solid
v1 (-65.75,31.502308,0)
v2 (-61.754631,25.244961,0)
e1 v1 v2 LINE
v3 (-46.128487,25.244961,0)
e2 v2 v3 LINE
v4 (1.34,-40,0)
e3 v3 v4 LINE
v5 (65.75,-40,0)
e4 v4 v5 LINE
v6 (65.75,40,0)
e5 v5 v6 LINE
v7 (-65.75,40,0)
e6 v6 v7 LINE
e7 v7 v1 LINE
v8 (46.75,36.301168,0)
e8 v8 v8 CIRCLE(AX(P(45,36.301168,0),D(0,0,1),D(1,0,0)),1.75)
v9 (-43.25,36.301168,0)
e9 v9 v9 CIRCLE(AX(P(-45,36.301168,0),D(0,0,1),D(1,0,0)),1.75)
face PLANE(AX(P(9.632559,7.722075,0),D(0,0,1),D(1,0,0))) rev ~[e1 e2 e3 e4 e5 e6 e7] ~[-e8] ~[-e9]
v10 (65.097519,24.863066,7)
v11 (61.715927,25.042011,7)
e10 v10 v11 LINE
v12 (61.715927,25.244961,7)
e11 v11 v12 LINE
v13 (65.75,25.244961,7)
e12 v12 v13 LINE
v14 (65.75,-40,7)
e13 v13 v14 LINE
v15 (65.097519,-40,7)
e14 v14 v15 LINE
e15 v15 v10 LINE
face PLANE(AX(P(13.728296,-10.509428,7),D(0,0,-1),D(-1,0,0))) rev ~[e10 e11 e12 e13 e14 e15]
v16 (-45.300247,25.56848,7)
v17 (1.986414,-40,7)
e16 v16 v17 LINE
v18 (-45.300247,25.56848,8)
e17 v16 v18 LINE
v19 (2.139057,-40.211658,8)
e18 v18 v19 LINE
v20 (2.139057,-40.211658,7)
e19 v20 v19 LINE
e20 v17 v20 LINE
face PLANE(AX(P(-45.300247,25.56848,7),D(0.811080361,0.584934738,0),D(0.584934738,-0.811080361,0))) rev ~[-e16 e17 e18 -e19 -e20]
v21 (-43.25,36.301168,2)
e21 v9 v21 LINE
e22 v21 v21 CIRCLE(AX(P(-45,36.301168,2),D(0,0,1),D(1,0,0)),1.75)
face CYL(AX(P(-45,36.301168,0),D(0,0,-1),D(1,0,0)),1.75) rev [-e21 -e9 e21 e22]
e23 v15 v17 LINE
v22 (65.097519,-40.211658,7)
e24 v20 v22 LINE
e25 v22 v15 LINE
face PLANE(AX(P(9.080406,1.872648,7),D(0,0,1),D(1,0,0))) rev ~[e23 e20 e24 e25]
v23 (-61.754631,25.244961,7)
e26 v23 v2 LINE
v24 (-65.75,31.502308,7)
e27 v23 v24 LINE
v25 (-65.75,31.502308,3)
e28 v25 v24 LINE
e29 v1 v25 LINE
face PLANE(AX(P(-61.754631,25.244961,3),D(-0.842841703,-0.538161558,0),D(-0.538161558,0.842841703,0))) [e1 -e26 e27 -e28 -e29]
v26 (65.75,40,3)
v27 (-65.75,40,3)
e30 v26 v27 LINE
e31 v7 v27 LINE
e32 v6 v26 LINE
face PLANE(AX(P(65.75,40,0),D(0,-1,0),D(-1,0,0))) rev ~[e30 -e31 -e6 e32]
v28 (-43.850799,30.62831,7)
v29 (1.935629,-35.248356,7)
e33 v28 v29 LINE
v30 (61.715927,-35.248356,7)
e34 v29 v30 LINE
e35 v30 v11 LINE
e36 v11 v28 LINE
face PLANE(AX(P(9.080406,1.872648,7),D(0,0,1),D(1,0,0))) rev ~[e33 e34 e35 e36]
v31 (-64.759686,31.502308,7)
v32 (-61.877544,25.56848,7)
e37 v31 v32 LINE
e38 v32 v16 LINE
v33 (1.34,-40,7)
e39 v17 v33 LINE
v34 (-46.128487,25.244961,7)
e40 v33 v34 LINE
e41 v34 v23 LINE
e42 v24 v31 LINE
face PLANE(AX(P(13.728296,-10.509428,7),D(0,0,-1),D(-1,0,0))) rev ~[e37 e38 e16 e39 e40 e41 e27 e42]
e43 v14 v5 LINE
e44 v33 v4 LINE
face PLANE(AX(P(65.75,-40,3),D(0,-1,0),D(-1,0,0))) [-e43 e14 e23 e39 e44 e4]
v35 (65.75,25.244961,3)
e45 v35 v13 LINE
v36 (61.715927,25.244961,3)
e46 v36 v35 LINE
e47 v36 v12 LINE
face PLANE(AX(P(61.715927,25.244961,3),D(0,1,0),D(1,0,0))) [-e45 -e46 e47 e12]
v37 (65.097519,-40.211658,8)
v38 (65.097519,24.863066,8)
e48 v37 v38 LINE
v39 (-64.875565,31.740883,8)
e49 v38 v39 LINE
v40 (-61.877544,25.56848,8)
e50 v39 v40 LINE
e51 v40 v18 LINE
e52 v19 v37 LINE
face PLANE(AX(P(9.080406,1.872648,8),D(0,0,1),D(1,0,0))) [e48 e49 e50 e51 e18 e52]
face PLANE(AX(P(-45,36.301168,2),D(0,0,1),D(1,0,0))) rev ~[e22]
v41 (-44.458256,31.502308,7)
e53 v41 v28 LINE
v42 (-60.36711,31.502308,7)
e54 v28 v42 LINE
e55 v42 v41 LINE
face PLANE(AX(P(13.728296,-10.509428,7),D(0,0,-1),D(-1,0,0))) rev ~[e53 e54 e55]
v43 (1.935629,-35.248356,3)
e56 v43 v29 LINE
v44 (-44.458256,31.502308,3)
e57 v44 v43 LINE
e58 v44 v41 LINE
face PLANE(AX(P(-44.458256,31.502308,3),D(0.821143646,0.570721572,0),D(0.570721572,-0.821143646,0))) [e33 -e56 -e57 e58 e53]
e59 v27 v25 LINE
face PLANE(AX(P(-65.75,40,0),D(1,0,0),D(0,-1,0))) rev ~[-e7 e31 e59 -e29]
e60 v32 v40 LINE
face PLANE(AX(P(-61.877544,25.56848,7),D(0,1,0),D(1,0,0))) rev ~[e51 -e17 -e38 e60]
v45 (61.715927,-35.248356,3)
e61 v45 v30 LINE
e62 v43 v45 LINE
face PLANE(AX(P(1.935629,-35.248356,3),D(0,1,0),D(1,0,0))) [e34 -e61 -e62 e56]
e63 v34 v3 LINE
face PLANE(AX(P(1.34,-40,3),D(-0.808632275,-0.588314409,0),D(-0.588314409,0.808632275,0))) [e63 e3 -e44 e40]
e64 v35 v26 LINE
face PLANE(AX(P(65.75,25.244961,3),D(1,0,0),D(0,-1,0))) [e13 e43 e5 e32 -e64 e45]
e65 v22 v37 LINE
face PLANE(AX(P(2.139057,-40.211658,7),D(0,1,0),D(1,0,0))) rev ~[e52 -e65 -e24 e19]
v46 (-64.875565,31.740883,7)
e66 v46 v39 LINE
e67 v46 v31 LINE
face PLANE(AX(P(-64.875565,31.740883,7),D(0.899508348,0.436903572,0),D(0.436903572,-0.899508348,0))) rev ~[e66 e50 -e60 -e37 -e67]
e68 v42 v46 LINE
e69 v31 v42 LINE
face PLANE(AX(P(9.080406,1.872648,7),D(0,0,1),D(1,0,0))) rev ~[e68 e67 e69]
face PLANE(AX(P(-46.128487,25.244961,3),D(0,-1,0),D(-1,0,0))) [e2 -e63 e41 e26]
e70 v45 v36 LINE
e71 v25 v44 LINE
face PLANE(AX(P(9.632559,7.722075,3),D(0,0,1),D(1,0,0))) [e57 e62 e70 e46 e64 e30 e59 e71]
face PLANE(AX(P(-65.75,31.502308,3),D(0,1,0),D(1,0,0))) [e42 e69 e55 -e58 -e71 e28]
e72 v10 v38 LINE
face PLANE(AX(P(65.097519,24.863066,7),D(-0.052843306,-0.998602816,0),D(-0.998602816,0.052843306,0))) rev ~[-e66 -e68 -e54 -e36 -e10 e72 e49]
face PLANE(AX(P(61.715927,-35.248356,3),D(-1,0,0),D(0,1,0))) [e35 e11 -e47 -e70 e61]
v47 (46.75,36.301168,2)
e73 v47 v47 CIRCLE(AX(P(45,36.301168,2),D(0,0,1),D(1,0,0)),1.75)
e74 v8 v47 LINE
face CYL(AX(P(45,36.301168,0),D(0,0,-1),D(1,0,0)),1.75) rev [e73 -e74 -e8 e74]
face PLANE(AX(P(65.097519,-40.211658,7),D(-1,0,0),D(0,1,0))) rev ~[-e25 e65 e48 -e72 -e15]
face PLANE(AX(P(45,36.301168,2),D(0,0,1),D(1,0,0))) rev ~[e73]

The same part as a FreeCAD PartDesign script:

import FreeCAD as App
import Part
import Sketcher


def add_polygon(sketch, points):
    """Adds a closed chain of lines whose ends are joined by coincident constraints."""
    first, n = sketch.GeometryCount, len(points)
    for a, b in zip(points, points[1:] + points[:1]):
        sketch.addGeometry(Part.LineSegment(App.Vector(*a, 0), App.Vector(*b, 0)), False)
    for i in range(n):
        sketch.addConstraint(Sketcher.Constraint("Coincident", first + i, 2, first + (i + 1) % n, 1))

doc = App.newDocument("Part")
body = doc.addObject("PartDesign::Body", "Body")

sketch1 = body.newObject("Sketcher::SketchObject", "Sketch")
sketch1.AttachmentSupport = (doc.getObject("XY_Plane"), [""])
sketch1.MapMode = "FlatFace"
add_polygon(sketch1, [(-46, 25), (1, -40), (66, -40), (66, 40), (-66, 40), (-66, 32), (-62, 25)])
sketch1.addConstraint(Sketcher.Constraint("Horizontal", 1))
sketch1.addConstraint(Sketcher.Constraint("Vertical", 2))
sketch1.addConstraint(Sketcher.Constraint("Horizontal", 3))
sketch1.addConstraint(Sketcher.Constraint("Vertical", 4))
sketch1.addConstraint(Sketcher.Constraint("Horizontal", 6))
sketch1.addConstraint(Sketcher.Constraint("Symmetric", 1, 2, 3, 2, -1, 1))
sketch1.addConstraint(Sketcher.Constraint("DistanceY", 2, 1, 2, 2, 80.0))
sketch1.addConstraint(Sketcher.Constraint("DistanceX", 3, 2, 3, 1, 131.5))
sketch1.addConstraint(Sketcher.Constraint("DistanceX", 1, 1, 1, 2, 64.41))
sketch1.addConstraint(Sketcher.Constraint("DistanceX", 6, 1, 6, 2, 15.626144))
sketch1.addConstraint(Sketcher.Constraint("DistanceY", 4, 2, 4, 1, 8.497692))
sketch1.addConstraint(Sketcher.Constraint("DistanceX", 5, 2, -1, 1, 61.754631))
sketch1.addConstraint(Sketcher.Constraint("DistanceY", -1, 1, 5, 2, 25.244961))
pad1 = body.newObject("PartDesign::Pad", "Pad")
pad1.Profile = sketch1
pad1.Length = 3

sketch2 = body.newObject("Sketcher::SketchObject", "Sketch001")
sketch2.AttachmentSupport = (doc.getObject("XY_Plane"), [""])
sketch2.MapMode = "FlatFace"
sketch2.addGeometry(Part.Circle(App.Vector(-45, 36.3, 0), App.Vector(0, 0, 1), 1.8), False)
sketch2.addGeometry(Part.Circle(App.Vector(45, 36.3, 0), App.Vector(0, 0, 1), 1.8), False)
sketch2.addConstraint(Sketcher.Constraint("Equal", 0, 1))
sketch2.addConstraint(Sketcher.Constraint("Symmetric", 0, 3, 1, 3, -2))
sketch2.addConstraint(Sketcher.Constraint("Diameter", 0, 3.5))
sketch2.addConstraint(Sketcher.Constraint("DistanceX", 0, 3, -1, 1, 45.0))
sketch2.addConstraint(Sketcher.Constraint("DistanceY", -1, 1, 0, 3, 36.301168))
pocket1 = body.newObject("PartDesign::Pocket", "Pocket")
pocket1.Profile = sketch2
pocket1.Length = 2
pocket1.Reversed = True

sketch3 = body.newObject("Sketcher::SketchObject", "Sketch002")
sketch3.AttachmentSupport = (doc.getObject("XY_Plane"), [""])
sketch3.MapMode = "FlatFace"
sketch3.AttachmentOffset = App.Placement(App.Vector(0, 0, 3), App.Rotation())
add_polygon(sketch3, [(65.8, -40), (65.8, 25.2), (61.7, 25.2), (61.7, -35.2), (1.9, -35.2), (-44.5, 31.5), (-65.8, 31.5), (-61.8, 25.2), (-46.1, 25.2), (1.3, -40)])
sketch3.addConstraint(Sketcher.Constraint("Vertical", 0))
sketch3.addConstraint(Sketcher.Constraint("Horizontal", 1))
sketch3.addConstraint(Sketcher.Constraint("Vertical", 2))
sketch3.addConstraint(Sketcher.Constraint("Horizontal", 3))
sketch3.addConstraint(Sketcher.Constraint("Horizontal", 5))
sketch3.addConstraint(Sketcher.Constraint("Horizontal", 7))
sketch3.addConstraint(Sketcher.Constraint("Horizontal", 9))
sketch3.addConstraint(Sketcher.Constraint("Horizontal", 1, 2, 6, 2))
sketch3.addConstraint(Sketcher.Constraint("DistanceY", 8, 2, -1, 1, 40.0))
sketch3.addConstraint(Sketcher.Constraint("DistanceX", 9, 1, 9, 2, 64.41))
sketch3.addConstraint(Sketcher.Constraint("DistanceX", 5, 2, 0, 2, 131.5))
sketch3.addConstraint(Sketcher.Constraint("DistanceX", -1, 1, 0, 2, 65.75))
sketch3.addConstraint(Sketcher.Constraint("DistanceX", 3, 2, 3, 1, 59.780298))
sketch3.addConstraint(Sketcher.Constraint("DistanceY", 0, 1, 0, 2, 65.244961))
sketch3.addConstraint(Sketcher.Constraint("DistanceX", 1, 2, 1, 1, 4.034073))
sketch3.addConstraint(Sketcher.Constraint("DistanceX", 5, 2, 5, 1, 21.291744))
sketch3.addConstraint(Sketcher.Constraint("DistanceX", 7, 1, 7, 2, 15.626144))
sketch3.addConstraint(Sketcher.Constraint("DistanceY", 2, 2, 2, 1, 60.493317))
sketch3.addConstraint(Sketcher.Constraint("DistanceX", 6, 2, -1, 1, 61.754631))
sketch3.addConstraint(Sketcher.Constraint("DistanceY", 8, 2, 4, 2, 71.502308))
pad2 = body.newObject("PartDesign::Pad", "Pad001")
pad2.Profile = sketch3
pad2.Length = 4

sketch4 = body.newObject("Sketcher::SketchObject", "Sketch003")
sketch4.AttachmentSupport = (doc.getObject("XY_Plane"), [""])
sketch4.MapMode = "FlatFace"
sketch4.AttachmentOffset = App.Placement(App.Vector(0, 0, 7), App.Rotation())
add_polygon(sketch4, [(-65, 32), (-62, 26), (-45, 26), (2, -40), (65, -40), (65, 25)])
sketch4.addConstraint(Sketcher.Constraint("Horizontal", 1))
sketch4.addConstraint(Sketcher.Constraint("Horizontal", 3))
sketch4.addConstraint(Sketcher.Constraint("Vertical", 4))
sketch4.addConstraint(Sketcher.Constraint("DistanceX", 0, 2, 2, 2, 64.016601))
sketch4.addConstraint(Sketcher.Constraint("DistanceX", 1, 1, 1, 2, 16.577297))
sketch4.addConstraint(Sketcher.Constraint("DistanceX", 3, 1, 3, 2, 62.958462))
sketch4.addConstraint(Sketcher.Constraint("DistanceY", 4, 1, 4, 2, 65.074724))
sketch4.addConstraint(Sketcher.Constraint("DistanceY", -1, 1, 0, 2, 25.56848))
sketch4.addConstraint(Sketcher.Constraint("DistanceX", -1, 1, 3, 2, 65.097519))
sketch4.addConstraint(Sketcher.Constraint("DistanceX", 5, 2, 0, 2, 2.998021))
sketch4.addConstraint(Sketcher.Constraint("DistanceY", 2, 2, 5, 2, 71.952541))
sketch4.addConstraint(Sketcher.Constraint("Distance", 0, 6.861974))
pad3 = body.newObject("PartDesign::Pad", "Pad002")
pad3.Profile = sketch4
pad3.Length = 1

doc.recompute()
